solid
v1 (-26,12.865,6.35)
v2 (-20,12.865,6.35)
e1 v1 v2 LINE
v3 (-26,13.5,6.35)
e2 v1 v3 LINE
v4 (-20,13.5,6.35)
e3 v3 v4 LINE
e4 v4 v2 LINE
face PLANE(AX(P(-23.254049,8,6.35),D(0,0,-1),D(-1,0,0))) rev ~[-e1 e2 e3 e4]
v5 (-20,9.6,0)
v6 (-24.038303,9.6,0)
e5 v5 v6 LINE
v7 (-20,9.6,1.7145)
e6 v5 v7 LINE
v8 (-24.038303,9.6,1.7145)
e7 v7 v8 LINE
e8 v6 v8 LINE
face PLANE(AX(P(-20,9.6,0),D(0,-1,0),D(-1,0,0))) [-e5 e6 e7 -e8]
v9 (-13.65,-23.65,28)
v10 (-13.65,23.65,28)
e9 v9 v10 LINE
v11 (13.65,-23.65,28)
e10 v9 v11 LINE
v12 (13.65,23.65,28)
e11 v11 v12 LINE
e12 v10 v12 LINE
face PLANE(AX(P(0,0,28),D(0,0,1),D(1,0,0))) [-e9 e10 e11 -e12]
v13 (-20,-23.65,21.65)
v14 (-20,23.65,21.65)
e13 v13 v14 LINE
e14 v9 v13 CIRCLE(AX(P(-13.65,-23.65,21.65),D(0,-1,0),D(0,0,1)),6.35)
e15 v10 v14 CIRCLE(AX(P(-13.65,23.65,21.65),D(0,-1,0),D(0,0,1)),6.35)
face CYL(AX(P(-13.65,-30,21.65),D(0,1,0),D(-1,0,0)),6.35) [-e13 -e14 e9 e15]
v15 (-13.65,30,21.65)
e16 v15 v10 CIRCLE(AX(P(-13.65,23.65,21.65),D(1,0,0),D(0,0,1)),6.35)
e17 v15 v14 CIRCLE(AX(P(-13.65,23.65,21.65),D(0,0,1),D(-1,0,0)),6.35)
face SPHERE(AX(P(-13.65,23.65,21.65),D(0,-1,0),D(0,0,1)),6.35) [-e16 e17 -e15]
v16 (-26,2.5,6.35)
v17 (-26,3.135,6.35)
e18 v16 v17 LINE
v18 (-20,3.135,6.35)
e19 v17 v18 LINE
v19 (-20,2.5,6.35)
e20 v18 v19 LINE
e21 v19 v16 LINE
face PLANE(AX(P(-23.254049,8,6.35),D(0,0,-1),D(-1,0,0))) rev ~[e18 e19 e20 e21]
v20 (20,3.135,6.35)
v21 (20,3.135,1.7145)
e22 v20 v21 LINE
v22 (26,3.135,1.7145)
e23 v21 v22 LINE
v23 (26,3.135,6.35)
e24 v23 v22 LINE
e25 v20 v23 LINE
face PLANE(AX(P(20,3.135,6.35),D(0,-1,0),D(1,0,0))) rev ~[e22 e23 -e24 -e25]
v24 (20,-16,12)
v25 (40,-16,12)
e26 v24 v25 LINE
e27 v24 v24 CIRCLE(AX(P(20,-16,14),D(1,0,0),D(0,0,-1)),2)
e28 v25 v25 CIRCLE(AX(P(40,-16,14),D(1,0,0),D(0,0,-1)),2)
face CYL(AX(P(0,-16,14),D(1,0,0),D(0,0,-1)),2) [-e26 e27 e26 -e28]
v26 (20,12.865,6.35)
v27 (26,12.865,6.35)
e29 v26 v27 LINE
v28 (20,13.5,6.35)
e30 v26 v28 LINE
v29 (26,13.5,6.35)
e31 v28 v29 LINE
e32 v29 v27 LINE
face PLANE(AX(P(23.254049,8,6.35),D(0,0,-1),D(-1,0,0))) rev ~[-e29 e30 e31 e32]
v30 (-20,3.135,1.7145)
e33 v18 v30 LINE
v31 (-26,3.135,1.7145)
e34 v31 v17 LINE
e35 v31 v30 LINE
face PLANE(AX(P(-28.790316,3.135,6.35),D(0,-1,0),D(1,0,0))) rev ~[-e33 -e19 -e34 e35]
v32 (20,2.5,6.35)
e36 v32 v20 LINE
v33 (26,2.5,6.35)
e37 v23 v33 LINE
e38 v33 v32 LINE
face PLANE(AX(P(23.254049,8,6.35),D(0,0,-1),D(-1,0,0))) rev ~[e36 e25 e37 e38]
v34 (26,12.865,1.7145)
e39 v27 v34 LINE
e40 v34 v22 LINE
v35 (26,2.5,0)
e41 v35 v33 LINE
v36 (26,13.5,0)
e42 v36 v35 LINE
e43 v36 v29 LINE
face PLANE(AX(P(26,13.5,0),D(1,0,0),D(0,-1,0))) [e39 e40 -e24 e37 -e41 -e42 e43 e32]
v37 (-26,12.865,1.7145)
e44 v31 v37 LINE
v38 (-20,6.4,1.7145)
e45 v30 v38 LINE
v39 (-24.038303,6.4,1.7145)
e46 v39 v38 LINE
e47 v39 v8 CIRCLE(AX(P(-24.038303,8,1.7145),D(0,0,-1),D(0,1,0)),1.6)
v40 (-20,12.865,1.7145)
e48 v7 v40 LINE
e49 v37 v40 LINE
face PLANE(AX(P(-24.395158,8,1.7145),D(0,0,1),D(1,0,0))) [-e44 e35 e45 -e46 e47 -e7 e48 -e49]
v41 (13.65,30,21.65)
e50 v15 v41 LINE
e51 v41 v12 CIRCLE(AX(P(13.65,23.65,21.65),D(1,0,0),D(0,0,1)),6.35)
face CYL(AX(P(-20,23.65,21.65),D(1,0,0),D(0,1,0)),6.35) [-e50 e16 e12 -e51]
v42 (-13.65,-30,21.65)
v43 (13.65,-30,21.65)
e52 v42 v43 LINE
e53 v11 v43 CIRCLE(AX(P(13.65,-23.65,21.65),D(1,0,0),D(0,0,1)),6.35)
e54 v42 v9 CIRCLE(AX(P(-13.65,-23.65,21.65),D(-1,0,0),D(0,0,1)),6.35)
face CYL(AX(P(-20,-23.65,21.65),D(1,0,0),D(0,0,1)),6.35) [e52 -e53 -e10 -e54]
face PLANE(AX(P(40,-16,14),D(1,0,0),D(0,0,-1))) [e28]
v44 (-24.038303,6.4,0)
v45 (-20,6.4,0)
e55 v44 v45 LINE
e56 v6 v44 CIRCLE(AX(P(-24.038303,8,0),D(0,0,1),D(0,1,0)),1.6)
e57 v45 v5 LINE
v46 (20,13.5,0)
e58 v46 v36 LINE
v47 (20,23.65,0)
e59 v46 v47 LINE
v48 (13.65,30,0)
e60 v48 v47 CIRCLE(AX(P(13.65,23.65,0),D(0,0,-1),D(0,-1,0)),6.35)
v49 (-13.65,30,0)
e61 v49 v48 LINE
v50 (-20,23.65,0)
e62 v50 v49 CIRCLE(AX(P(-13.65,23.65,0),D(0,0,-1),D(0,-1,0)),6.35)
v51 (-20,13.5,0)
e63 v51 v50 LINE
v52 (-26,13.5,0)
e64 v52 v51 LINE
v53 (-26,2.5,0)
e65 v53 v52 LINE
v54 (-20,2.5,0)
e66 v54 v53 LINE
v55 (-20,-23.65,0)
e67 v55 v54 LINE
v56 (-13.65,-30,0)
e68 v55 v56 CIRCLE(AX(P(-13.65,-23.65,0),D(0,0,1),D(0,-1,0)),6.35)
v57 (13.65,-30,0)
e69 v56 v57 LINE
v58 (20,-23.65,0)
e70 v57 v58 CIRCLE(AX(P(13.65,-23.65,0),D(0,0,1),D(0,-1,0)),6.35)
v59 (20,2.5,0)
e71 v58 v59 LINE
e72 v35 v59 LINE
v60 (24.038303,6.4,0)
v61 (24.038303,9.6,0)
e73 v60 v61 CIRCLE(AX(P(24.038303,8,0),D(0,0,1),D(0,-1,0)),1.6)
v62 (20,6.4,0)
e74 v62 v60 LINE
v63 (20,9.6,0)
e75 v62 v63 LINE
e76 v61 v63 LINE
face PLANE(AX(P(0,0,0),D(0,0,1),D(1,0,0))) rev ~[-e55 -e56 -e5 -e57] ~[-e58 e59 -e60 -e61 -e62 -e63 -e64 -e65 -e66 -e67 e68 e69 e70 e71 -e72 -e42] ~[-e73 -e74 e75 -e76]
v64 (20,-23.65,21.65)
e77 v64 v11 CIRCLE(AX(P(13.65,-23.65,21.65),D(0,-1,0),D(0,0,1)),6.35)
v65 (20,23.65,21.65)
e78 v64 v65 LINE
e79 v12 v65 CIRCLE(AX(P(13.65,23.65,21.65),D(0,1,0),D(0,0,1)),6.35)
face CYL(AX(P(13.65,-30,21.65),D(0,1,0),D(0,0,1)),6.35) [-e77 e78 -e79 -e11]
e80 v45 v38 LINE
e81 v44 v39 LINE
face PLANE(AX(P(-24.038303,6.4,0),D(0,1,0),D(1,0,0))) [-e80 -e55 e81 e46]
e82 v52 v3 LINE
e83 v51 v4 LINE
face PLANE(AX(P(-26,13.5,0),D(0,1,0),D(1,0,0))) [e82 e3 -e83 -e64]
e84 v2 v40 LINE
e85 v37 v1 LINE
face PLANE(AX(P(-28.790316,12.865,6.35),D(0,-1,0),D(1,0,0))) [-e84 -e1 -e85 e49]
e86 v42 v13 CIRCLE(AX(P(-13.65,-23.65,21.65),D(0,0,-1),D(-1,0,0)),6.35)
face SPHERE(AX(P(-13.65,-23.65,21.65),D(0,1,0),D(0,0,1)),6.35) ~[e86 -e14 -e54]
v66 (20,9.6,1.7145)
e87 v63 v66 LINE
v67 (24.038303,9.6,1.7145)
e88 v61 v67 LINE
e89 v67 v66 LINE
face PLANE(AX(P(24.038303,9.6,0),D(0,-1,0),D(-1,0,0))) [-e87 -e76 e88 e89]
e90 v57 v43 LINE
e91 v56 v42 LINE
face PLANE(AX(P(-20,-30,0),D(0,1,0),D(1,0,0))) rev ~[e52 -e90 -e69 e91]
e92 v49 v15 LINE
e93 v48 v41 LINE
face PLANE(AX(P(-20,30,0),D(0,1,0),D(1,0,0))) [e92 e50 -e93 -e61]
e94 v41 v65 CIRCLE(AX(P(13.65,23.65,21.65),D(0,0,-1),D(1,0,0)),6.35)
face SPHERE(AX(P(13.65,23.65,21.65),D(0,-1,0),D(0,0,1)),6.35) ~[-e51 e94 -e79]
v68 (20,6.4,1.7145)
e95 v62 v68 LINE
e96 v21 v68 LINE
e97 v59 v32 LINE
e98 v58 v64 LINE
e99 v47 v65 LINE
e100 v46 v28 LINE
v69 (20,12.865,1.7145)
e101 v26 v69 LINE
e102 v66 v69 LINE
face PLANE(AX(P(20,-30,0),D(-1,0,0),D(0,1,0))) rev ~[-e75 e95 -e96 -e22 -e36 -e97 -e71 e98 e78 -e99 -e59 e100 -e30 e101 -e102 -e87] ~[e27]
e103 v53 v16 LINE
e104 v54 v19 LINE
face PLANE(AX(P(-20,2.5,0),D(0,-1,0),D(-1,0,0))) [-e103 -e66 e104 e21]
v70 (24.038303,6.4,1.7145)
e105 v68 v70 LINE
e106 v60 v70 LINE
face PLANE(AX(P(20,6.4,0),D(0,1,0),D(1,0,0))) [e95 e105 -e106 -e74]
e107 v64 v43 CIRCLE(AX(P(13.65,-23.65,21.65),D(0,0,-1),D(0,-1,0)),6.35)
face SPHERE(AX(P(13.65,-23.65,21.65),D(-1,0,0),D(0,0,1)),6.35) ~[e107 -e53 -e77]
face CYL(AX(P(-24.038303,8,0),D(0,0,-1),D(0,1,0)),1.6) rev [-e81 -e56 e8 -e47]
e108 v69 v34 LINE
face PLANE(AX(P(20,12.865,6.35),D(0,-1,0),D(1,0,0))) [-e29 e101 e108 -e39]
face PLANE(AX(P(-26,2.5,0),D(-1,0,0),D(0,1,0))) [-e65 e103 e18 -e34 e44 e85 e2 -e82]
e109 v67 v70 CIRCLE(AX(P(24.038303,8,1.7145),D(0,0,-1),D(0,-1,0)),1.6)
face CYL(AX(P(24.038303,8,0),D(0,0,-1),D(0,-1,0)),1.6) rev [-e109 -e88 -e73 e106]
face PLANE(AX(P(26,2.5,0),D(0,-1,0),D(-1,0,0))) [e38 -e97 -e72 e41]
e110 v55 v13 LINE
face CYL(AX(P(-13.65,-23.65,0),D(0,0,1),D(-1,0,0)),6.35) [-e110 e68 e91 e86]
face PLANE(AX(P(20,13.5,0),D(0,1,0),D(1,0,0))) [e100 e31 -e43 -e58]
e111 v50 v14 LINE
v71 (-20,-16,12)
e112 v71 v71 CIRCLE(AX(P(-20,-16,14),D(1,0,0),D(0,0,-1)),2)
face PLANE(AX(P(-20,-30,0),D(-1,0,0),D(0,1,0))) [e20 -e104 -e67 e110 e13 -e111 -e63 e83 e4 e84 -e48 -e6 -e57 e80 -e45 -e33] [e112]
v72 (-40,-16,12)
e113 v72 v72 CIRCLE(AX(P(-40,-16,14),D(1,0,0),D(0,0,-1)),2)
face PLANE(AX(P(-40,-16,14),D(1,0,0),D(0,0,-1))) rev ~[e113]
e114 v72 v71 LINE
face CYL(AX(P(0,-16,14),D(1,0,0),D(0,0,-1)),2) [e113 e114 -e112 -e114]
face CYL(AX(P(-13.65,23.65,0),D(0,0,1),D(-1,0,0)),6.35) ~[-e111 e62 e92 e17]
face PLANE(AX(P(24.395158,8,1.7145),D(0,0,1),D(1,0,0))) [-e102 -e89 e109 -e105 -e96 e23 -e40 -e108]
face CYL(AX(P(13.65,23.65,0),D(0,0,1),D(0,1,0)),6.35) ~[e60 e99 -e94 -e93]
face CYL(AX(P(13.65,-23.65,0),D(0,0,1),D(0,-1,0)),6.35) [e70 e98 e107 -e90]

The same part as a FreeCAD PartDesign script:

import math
import FreeCAD as App
import Part
import Sketcher

V = App.Vector


def edges_at(feature, points):
    """Names of the edges that pass closest to the given points."""
    edges = feature.Shape.Edges
    near = lambda p: min(range(len(edges)), key=lambda i: edges[i].distToShape(Part.Vertex(*p))[0])
    return sorted({f"Edge{near(p) + 1}" for p in points})


def add_polygon(sketch, points):
    """Adds a closed chain of lines whose ends are joined by coincident constraints."""
    first, n = sketch.GeometryCount, len(points)
    for a, b in zip(points, points[1:] + points[:1]):
        sketch.addGeometry(Part.LineSegment(App.Vector(*a, 0), App.Vector(*b, 0)), False)
    for i in range(n):
        sketch.addConstraint(Sketcher.Constraint("Coincident", first + i, 2, first + (i + 1) % n, 1))

doc = App.newDocument("Part")
body = doc.addObject("PartDesign::Body", "Body")

# Sketch on XY plane
sketch1 = doc.addObject("Sketcher::SketchObject", "Sketch")
body.addObject(sketch1)
sketch1.AttachmentSupport = (doc.XY_Plane, [""])
sketch1.MapMode = "FlatFace"
add_polygon(sketch1, [(-20, 30), (-20, -30), (20, -30), (20, 30)])  # lines 0-3
sketch1.addConstraint([
    Sketcher.Constraint("Vertical", 0),
    Sketcher.Constraint("Horizontal", 1),
    Sketcher.Constraint("Vertical", 2),
    Sketcher.Constraint("Horizontal", 3),
    Sketcher.Constraint("Symmetric", 0, 2, 2, 2, -1, 1),
    Sketcher.Constraint("DistanceX", 1, 1, 1, 2, 40.0),
    Sketcher.Constraint("DistanceY", 0, 2, 0, 1, 60.0),
])
pad1 = doc.addObject("PartDesign::Pad", "Pad")
body.addObject(pad1)
pad1.Profile = sketch1
pad1.Length = 28

# Sketch on XY plane
sketch2 = doc.addObject("Sketcher::SketchObject", "Sketch001")
body.addObject(sketch2)
sketch2.AttachmentSupport = (doc.XY_Plane, [""])
sketch2.MapMode = "FlatFace"
sketch2.addGeometry([
    Part.LineSegment(V(20, 9.6, 0), V(20, 13.5, 0)),  # 0
    Part.LineSegment(V(20, 13.5, 0), V(26, 13.5, 0)),  # 1
    Part.LineSegment(V(26, 13.5, 0), V(26, 2.5, 0)),  # 2
    Part.LineSegment(V(26, 2.5, 0), V(20, 2.5, 0)),  # 3
    Part.LineSegment(V(20, 2.5, 0), V(20, 6.4, 0)),  # 4
    Part.LineSegment(V(20, 6.4, 0), V(24, 6.4, 0)),  # 5
    Part.ArcOfCircle(Part.Circle(V(24, 8, 0), V(0, 0, 1), 1.6), math.radians(-90), math.radians(90)),  # 6
    Part.LineSegment(V(24, 9.6, 0), V(20, 9.6, 0)),  # 7
    Part.LineSegment(V(-24, 6.4, 0), V(-20, 6.4, 0)),  # 8
    Part.LineSegment(V(-20, 6.4, 0), V(-20, 2.5, 0)),  # 9
    Part.LineSegment(V(-20, 2.5, 0), V(-26, 2.5, 0)),  # 10
    Part.LineSegment(V(-26, 2.5, 0), V(-26, 13.5, 0)),  # 11
    Part.LineSegment(V(-26, 13.5, 0), V(-20, 13.5, 0)),  # 12
    Part.LineSegment(V(-20, 13.5, 0), V(-20, 9.6, 0)),  # 13
    Part.LineSegment(V(-20, 9.6, 0), V(-24, 9.6, 0)),  # 14
    Part.ArcOfCircle(Part.Circle(V(-24, 8, 0), V(0, 0, 1), 1.6), math.radians(90), math.radians(270)),  # 15
], False)
sketch2.addConstraint([
    Sketcher.Constraint("Coincident", 0, 2, 1, 1),
    Sketcher.Constraint("Coincident", 1, 2, 2, 1),
    Sketcher.Constraint("Coincident", 2, 2, 3, 1),
    Sketcher.Constraint("Coincident", 3, 2, 4, 1),
    Sketcher.Constraint("Coincident", 4, 2, 5, 1),
    Sketcher.Constraint("Tangent", 5, 2, 6, 1),
    Sketcher.Constraint("Tangent", 6, 2, 7, 1),
    Sketcher.Constraint("Coincident", 7, 2, 0, 1),
    Sketcher.Constraint("Coincident", 8, 2, 9, 1),
    Sketcher.Constraint("Coincident", 9, 2, 10, 1),
    Sketcher.Constraint("Coincident", 10, 2, 11, 1),
    Sketcher.Constraint("Coincident", 11, 2, 12, 1),
    Sketcher.Constraint("Coincident", 12, 2, 13, 1),
    Sketcher.Constraint("Coincident", 13, 2, 14, 1),
    Sketcher.Constraint("Tangent", 14, 2, 15, 1),
    Sketcher.Constraint("Tangent", 15, 2, 8, 1),
    Sketcher.Constraint("Vertical", 0),
    Sketcher.Constraint("Horizontal", 1),
    Sketcher.Constraint("Vertical", 2),
    Sketcher.Constraint("Horizontal", 3),
    Sketcher.Constraint("Vertical", 4),
    Sketcher.Constraint("Horizontal", 5),
    Sketcher.Constraint("Horizontal", 7),
    Sketcher.Constraint("Horizontal", 8),
    Sketcher.Constraint("Vertical", 9),
    Sketcher.Constraint("Horizontal", 10),
    Sketcher.Constraint("Vertical", 11),
    Sketcher.Constraint("Horizontal", 12),
    Sketcher.Constraint("Vertical", 13),
    Sketcher.Constraint("Horizontal", 14),
    Sketcher.Constraint("Equal", 6, 15),
    Sketcher.Constraint("Symmetric", 6, 3, 15, 3, -2),
    Sketcher.Constraint("Symmetric", 3, 2, 9, 2, -2),
    Sketcher.Constraint("Symmetric", 1, 2, 11, 2, -2),
    Sketcher.Constraint("Vertical", 0, 2, 3, 2),
    Sketcher.Constraint("Vertical", 9, 2, 12, 2),
    Sketcher.Constraint("Equal", 0, 4),
    Sketcher.Constraint("Radius", 6, 1.6),
    Sketcher.Constraint("DistanceX", 1, 1, 1, 2, 6.0),
    Sketcher.Constraint("DistanceY", 2, 2, 2, 1, 11.0),
    Sketcher.Constraint("DistanceY", -1, 1, 6, 3, 8.0),
    Sketcher.Constraint("DistanceX", -1, 1, 0, 2, 20.0),
    Sketcher.Constraint("DistanceX", 5, 1, 5, 2, 4.038303),
])
pad2 = doc.addObject("PartDesign::Pad", "Pad001")
body.addObject(pad2)
pad2.Profile = sketch2
pad2.Length = 6.35
doc.recompute()

fillet = doc.addObject("PartDesign::Fillet", "Fillet")
body.addObject(fillet)
fillet.Base = (pad2, edges_at(pad2, [
    (-20, 0, 28),
    (0, -30, 28),
    (20, 0, 28),
    (0, 30, 28),
    (20, -30, 14),
    (-20, -30, 14),
    (-20, 30, 14),
    (20, 30, 14),
]))
fillet.Radius = 6.35

# Sketch on XY plane
sketch3 = doc.addObject("Sketcher::SketchObject", "Sketch002")
body.addObject(sketch3)
sketch3.AttachmentSupport = (doc.XY_Plane, [""])
sketch3.MapMode = "FlatFace"
sketch3.AttachmentOffset = App.Placement(V(0, 0, 6.35), App.Rotation())
add_polygon(sketch3, [(-29, 13), (-29, 3), (-20, 3), (-20, 13)])  # lines 0-3
add_polygon(sketch3, [(20, 13), (20, 3), (29, 3), (29, 13)])  # lines 4-7
sketch3.addConstraint([
    Sketcher.Constraint("Vertical", 0),
    Sketcher.Constraint("Horizontal", 1),
    Sketcher.Constraint("Vertical", 2),
    Sketcher.Constraint("Horizontal", 3),
    Sketcher.Constraint("Vertical", 4),
    Sketcher.Constraint("Horizontal", 5),
    Sketcher.Constraint("Vertical", 6),
    Sketcher.Constraint("Horizontal", 7),
    Sketcher.Constraint("Symmetric", 1, 2, 4, 2, -2),
    Sketcher.Constraint("Symmetric", 3, 2, 6, 2, -2),
    Sketcher.Constraint("DistanceX", 1, 2, -1, 1, 20.0),
    Sketcher.Constraint("DistanceY", 0, 2, 0, 1, 9.73),
    Sketcher.Constraint("DistanceY", -1, 1, 0, 2, 3.135),
    Sketcher.Constraint("DistanceX", 1, 1, 1, 2, 8.790316),
])
pocket1 = doc.addObject("PartDesign::Pocket", "Pocket")
body.addObject(pocket1)
pocket1.Profile = sketch3
pocket1.Length = 4.6355

# Sketch on YZ plane
sketch4 = doc.addObject("Sketcher::SketchObject", "Sketch003")
body.addObject(sketch4)
sketch4.AttachmentSupport = (doc.YZ_Plane, [""])
sketch4.MapMode = "FlatFace"
sketch4.addGeometry(Part.Circle(V(-16, 14, 0), V(0, 0, 1), 2), False)
sketch4.addConstraint([
    Sketcher.Constraint("Diameter", 0, 4.0),
    Sketcher.Constraint("DistanceX", 0, 3, -1, 1, 16.0),
    Sketcher.Constraint("DistanceY", -1, 1, 0, 3, 14.0),
])
pad3 = doc.addObject("PartDesign::Pad", "Pad002")
body.addObject(pad3)
pad3.Profile = sketch4
pad3.Length = 80
pad3.Midplane = True

doc.recompute()
